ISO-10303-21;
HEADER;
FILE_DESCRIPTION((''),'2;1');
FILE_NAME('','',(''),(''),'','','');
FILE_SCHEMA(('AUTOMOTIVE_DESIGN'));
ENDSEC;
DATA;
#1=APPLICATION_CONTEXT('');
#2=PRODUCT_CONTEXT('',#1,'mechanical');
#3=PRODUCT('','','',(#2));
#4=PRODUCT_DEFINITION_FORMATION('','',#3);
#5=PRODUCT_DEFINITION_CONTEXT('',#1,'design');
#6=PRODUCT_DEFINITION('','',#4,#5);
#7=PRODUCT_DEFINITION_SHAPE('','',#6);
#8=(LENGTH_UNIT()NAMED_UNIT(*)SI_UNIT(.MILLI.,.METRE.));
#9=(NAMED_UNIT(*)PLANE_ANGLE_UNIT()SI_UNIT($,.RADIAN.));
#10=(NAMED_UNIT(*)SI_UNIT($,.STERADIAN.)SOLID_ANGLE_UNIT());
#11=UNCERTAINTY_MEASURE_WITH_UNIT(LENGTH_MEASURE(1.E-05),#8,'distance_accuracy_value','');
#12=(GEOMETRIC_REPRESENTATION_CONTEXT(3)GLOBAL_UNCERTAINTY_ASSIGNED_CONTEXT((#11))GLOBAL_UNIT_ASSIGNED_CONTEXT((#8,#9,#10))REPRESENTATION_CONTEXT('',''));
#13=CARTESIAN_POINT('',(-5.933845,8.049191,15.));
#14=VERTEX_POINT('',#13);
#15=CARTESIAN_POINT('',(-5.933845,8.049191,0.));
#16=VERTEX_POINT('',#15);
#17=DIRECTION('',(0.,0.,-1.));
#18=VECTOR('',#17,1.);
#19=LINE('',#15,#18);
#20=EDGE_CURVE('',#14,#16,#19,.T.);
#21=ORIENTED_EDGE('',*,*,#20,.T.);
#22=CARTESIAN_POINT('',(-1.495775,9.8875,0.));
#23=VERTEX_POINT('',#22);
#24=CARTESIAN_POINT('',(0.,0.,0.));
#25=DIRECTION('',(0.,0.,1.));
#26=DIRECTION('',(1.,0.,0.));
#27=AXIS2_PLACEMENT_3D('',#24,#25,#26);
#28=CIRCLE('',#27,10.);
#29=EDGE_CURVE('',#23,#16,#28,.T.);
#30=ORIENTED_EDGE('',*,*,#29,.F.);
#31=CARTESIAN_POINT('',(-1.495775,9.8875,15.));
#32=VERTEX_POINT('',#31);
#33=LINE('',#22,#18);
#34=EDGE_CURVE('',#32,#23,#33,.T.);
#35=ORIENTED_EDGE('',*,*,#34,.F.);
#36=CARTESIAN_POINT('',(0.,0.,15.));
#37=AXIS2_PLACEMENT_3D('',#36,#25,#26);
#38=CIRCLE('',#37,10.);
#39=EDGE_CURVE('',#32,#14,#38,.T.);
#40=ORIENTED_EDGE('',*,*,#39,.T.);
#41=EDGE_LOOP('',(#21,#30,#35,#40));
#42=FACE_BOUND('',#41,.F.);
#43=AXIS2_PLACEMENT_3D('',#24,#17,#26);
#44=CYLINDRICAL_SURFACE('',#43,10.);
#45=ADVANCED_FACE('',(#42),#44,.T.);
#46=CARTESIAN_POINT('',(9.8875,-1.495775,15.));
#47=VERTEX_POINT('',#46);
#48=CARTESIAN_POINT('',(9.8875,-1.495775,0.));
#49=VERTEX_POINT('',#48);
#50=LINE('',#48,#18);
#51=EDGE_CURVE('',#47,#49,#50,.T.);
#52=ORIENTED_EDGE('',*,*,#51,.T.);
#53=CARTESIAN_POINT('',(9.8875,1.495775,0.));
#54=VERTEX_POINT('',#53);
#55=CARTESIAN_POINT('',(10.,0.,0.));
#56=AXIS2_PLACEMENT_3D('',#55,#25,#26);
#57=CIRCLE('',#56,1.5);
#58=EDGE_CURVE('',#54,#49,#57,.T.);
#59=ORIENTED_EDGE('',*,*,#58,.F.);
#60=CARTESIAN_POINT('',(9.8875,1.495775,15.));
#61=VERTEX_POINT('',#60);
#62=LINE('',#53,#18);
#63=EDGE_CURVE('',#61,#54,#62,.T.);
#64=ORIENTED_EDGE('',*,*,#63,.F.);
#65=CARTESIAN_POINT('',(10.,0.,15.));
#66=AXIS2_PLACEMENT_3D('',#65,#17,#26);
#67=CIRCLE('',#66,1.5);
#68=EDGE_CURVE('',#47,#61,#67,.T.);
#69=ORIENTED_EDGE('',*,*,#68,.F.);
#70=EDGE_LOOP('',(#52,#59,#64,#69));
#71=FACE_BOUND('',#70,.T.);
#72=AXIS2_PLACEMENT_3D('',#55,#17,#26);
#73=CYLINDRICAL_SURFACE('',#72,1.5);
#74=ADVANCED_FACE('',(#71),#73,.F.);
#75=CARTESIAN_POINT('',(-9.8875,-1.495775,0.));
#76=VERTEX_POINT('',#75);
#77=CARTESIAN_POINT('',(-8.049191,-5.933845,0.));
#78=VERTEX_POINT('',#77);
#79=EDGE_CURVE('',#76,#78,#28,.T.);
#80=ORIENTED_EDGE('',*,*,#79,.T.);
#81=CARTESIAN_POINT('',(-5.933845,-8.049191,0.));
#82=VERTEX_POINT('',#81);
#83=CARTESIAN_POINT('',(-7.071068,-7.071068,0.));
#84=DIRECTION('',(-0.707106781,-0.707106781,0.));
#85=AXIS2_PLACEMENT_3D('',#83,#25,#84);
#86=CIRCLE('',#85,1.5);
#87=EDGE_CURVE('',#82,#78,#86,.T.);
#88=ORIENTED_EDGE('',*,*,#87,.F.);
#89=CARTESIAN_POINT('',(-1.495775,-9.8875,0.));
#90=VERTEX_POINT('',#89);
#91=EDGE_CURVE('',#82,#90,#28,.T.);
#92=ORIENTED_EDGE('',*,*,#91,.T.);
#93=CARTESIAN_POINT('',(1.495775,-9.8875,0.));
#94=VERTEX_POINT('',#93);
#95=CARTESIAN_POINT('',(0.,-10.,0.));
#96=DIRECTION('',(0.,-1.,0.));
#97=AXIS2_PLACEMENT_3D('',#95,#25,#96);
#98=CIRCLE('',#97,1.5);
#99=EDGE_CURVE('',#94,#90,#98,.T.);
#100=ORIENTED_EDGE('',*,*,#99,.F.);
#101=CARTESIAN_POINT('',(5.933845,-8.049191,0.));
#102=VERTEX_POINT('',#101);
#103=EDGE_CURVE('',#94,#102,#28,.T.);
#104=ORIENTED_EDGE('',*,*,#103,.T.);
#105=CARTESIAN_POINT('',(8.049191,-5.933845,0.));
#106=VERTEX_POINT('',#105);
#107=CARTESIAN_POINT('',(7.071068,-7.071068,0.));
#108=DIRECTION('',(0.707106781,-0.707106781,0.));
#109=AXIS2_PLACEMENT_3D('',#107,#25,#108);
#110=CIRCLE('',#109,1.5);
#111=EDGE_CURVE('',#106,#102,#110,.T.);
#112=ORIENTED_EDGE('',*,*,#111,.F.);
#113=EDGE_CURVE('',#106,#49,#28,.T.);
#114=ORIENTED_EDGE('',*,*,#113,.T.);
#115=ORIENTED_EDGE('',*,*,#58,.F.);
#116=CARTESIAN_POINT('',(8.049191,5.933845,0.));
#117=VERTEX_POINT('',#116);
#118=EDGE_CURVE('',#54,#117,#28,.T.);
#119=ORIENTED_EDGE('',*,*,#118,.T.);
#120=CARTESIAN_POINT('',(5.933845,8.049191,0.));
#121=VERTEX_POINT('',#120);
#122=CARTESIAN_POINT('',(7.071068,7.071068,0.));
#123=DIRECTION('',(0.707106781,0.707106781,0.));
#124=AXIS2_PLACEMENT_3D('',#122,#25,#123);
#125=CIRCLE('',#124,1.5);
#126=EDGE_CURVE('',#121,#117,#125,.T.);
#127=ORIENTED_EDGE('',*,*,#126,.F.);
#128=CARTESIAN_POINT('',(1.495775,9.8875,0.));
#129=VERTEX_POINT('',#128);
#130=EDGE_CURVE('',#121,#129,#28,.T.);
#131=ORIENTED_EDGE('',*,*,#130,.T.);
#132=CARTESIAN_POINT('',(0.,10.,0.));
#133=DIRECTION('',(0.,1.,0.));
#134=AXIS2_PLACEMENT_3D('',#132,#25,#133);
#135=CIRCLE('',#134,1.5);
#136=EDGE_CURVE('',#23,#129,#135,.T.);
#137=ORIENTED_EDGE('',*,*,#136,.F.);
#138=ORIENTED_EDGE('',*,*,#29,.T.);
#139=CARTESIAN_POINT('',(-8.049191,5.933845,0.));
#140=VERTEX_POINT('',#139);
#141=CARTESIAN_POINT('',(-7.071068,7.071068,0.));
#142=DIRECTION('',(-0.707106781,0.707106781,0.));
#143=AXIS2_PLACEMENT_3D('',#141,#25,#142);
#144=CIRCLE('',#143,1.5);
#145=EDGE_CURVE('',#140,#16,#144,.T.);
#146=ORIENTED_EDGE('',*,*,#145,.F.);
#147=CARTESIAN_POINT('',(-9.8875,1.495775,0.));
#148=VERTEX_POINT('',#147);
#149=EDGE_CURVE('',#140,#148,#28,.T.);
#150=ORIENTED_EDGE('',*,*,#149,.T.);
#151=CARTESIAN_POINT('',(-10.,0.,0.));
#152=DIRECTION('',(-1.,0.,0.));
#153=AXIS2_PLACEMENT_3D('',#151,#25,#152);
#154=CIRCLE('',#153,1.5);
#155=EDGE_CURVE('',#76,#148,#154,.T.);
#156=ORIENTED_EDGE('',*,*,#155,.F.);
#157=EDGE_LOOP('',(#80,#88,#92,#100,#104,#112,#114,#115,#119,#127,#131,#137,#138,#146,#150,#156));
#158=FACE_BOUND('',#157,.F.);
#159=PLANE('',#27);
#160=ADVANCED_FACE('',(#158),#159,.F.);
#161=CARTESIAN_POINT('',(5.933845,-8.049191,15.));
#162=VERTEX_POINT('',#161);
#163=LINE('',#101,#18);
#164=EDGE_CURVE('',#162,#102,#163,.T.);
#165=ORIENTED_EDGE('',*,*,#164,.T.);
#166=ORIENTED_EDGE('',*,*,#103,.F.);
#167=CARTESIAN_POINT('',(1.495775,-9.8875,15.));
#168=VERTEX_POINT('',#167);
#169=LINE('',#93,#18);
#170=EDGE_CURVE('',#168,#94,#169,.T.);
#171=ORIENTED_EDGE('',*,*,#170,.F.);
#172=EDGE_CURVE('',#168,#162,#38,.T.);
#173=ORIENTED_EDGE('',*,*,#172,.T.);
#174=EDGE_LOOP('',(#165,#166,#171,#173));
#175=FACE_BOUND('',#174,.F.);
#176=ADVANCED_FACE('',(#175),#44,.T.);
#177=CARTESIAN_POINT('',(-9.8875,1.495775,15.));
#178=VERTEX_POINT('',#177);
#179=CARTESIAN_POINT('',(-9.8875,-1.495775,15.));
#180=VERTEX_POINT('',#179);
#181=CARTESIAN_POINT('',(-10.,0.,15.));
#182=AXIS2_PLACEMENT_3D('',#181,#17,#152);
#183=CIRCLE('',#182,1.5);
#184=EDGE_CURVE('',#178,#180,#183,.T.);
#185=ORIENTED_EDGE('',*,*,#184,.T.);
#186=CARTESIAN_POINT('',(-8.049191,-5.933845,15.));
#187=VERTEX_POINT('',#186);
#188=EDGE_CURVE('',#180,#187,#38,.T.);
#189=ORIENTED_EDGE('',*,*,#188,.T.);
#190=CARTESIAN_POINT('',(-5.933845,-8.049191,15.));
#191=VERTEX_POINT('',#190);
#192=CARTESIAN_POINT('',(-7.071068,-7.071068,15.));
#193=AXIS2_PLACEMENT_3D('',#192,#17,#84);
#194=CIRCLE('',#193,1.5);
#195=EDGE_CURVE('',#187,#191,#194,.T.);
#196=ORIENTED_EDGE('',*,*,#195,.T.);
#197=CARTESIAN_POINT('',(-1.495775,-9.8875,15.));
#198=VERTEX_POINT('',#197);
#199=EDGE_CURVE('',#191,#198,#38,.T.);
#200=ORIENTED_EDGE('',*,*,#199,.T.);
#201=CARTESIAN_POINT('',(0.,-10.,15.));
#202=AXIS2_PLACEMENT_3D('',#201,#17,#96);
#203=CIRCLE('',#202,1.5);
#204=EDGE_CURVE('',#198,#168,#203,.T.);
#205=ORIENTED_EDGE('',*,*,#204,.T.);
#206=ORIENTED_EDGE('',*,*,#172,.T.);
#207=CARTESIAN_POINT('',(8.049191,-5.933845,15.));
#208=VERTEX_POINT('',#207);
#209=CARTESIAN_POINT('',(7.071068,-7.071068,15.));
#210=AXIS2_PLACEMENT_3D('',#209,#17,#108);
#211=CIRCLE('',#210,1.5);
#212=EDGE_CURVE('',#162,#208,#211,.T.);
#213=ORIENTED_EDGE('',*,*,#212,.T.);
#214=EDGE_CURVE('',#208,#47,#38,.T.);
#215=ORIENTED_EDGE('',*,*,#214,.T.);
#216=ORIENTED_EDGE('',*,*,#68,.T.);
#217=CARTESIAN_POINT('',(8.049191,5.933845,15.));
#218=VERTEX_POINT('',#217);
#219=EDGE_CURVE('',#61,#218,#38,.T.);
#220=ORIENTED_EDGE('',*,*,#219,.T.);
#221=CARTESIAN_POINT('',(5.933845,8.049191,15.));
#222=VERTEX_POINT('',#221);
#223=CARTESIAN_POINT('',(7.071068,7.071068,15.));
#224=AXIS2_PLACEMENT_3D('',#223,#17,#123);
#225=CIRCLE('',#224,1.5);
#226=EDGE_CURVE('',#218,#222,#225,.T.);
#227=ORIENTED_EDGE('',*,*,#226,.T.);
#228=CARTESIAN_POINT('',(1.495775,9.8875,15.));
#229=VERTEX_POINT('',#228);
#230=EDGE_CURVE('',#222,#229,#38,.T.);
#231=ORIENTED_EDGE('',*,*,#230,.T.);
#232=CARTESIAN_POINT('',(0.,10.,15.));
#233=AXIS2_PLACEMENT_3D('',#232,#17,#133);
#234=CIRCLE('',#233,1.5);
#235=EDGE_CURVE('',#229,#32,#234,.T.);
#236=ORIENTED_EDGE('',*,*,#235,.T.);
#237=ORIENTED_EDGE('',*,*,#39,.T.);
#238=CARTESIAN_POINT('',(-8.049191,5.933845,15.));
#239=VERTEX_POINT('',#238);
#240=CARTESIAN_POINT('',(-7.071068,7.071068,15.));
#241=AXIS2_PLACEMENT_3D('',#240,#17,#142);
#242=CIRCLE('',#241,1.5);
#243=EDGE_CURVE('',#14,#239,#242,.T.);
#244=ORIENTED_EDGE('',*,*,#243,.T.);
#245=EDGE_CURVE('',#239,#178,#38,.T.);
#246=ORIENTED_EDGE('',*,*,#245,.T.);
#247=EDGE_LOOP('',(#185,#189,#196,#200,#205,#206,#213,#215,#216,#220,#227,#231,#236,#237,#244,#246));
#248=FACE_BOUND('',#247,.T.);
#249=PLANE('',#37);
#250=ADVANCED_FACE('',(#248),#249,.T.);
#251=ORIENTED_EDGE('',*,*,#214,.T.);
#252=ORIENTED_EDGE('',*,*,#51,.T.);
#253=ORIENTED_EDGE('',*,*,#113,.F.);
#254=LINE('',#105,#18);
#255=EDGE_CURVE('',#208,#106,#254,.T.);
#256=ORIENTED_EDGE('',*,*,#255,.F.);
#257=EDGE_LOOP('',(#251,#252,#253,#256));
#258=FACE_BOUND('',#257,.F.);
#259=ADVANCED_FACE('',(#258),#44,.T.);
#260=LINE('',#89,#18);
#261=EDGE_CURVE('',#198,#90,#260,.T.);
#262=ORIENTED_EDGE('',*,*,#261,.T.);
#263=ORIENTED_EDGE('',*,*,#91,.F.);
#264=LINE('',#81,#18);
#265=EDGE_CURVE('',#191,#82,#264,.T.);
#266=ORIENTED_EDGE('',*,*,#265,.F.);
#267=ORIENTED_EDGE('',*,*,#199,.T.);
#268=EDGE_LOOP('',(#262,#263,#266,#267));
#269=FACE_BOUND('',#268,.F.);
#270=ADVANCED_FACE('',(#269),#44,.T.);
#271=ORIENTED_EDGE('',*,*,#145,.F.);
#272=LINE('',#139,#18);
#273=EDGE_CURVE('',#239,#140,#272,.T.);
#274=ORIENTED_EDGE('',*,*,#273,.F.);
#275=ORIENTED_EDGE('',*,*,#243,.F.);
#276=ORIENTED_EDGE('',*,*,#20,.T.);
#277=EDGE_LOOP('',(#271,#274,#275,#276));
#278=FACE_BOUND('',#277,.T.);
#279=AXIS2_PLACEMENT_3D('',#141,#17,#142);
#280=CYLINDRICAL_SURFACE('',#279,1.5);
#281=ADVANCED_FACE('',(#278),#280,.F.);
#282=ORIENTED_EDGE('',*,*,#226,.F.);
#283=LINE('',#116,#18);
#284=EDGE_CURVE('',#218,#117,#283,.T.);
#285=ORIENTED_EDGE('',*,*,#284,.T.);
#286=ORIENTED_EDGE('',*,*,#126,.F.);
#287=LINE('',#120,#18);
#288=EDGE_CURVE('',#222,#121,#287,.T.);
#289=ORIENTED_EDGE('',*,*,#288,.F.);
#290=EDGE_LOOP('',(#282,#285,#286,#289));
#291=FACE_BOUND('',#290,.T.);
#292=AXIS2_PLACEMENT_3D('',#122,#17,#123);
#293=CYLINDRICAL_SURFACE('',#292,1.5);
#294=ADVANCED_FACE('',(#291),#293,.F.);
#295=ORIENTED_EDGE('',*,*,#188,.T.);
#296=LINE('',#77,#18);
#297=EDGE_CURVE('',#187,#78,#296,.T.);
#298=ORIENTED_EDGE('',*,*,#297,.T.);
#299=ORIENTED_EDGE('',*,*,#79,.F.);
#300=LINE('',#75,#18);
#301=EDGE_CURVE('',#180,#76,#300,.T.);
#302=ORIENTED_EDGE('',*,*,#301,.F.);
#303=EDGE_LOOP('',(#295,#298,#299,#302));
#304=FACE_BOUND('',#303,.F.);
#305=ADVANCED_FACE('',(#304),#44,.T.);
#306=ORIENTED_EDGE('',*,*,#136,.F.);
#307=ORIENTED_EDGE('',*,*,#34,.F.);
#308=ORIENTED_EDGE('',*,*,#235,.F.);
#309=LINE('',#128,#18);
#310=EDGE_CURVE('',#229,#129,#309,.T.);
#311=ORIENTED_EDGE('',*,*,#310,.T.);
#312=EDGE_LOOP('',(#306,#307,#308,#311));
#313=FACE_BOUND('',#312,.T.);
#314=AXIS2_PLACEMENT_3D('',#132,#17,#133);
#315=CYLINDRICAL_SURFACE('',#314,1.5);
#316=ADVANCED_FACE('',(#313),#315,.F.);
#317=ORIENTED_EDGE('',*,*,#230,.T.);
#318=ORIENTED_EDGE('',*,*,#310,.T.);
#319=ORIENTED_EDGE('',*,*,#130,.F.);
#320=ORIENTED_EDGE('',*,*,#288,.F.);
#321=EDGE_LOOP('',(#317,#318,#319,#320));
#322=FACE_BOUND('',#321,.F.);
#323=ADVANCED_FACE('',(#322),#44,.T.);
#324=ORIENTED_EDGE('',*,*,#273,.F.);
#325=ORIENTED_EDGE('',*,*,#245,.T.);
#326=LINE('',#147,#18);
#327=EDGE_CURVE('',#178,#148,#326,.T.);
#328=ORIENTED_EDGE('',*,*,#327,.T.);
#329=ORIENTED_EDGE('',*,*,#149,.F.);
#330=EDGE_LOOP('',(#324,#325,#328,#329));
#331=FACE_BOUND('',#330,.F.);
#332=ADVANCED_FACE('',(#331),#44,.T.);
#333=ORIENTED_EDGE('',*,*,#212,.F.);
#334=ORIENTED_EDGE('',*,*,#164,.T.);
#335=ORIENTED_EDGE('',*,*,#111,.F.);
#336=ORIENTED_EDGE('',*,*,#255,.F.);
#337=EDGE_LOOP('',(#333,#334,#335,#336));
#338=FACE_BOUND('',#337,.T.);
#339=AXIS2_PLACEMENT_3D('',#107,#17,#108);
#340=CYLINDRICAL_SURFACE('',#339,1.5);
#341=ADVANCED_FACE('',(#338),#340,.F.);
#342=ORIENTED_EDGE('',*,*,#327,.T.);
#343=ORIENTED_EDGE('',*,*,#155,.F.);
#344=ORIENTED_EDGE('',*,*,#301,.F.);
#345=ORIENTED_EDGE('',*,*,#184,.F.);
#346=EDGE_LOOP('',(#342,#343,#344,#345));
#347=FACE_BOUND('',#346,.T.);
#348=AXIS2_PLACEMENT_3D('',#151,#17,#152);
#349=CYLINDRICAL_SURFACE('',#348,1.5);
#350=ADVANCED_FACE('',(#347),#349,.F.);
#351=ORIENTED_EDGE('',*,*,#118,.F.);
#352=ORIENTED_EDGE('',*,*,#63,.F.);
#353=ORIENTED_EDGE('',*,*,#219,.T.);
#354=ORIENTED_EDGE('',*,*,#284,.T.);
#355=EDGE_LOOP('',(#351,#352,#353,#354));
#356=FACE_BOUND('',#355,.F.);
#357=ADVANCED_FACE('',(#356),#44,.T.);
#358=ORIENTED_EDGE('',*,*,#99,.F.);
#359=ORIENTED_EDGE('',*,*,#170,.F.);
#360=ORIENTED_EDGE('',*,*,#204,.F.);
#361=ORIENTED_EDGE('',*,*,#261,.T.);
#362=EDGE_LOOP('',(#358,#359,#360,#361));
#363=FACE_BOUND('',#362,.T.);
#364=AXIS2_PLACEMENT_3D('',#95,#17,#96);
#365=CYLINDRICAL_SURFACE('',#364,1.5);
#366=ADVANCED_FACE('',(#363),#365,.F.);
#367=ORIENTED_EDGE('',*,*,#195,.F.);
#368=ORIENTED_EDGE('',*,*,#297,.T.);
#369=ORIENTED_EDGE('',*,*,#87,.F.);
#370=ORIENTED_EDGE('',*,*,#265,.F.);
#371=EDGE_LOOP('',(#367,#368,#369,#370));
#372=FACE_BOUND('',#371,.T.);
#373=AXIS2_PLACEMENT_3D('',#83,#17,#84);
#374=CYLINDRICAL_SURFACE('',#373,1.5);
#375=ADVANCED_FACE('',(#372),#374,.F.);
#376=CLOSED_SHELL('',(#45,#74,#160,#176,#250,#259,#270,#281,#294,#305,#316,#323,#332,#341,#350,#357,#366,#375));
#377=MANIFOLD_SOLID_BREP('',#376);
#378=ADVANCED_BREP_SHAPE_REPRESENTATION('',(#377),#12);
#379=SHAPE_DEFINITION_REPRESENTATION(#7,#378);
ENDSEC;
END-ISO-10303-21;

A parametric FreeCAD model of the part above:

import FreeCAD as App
import Part
import Sketcher

V = App.Vector

doc = App.newDocument("Part")
body = doc.addObject("PartDesign::Body", "Body")

sketch1 = body.newObject("Sketcher::SketchObject", "Sketch")
sketch1.AttachmentSupport = (doc.getObject("XY_Plane"), [""])
sketch1.MapMode = "FlatFace"
sketch1.addGeometry(Part.Circle(V(10, 0, 0), V(0, 0, 1), 1.5), False)
sketch1.addConstraint([
    Sketcher.Constraint("PointOnObject", 0, 3, -1),
    Sketcher.Constraint("Diameter", 0, 3.0),
    Sketcher.Constraint("DistanceX", -1, 1, 0, 3, 10.0),
])
pad1 = body.newObject("PartDesign::Pad", "Pad")
pad1.Profile = sketch1
pad1.Length = 20
body2 = doc.addObject("PartDesign::Body", "Body001")
body2.AllowCompound = True
doc.recompute()

body2.BaseFeature = body
doc.recompute()

body3 = doc.addObject("PartDesign::Body", "Body002")
body3.BaseFeature = body
body3.Placement = App.Placement(V(0, 0, 0), App.Rotation(V(0, 0, 1), 45))
boolean = body2.newObject("PartDesign::Boolean", "Boolean")
boolean.Type = "Fuse"
boolean.addObjects([body3])
doc.recompute()

body4 = doc.addObject("PartDesign::Body", "Body003")
body4.BaseFeature = body
body4.Placement = App.Placement(V(0, 0, 0), App.Rotation(V(0, 0, 1), 90))
boolean2 = body2.newObject("PartDesign::Boolean", "Boolean001")
boolean2.Type = "Fuse"
boolean2.addObjects([body4])
doc.recompute()

body5 = doc.addObject("PartDesign::Body", "Body004")
body5.BaseFeature = body
body5.Placement = App.Placement(V(0, 0, 0), App.Rotation(V(0, 0, 1), 135))
boolean3 = body2.newObject("PartDesign::Boolean", "Boolean002")
boolean3.Type = "Fuse"
boolean3.addObjects([body5])
doc.recompute()

body6 = doc.addObject("PartDesign::Body", "Body005")
body6.BaseFeature = body
body6.Placement = App.Placement(V(0, 0, 0), App.Rotation(V(0, 0, 1), 180))
boolean4 = body2.newObject("PartDesign::Boolean", "Boolean003")
boolean4.Type = "Fuse"
boolean4.addObjects([body6])
doc.recompute()

body7 = doc.addObject("PartDesign::Body", "Body006")
body7.BaseFeature = body
body7.Placement = App.Placement(V(0, 0, 0), App.Rotation(V(0, 0, 1), 225))
boolean5 = body2.newObject("PartDesign::Boolean", "Boolean004")
boolean5.Type = "Fuse"
boolean5.addObjects([body7])
doc.recompute()

body8 = doc.addObject("PartDesign::Body", "Body007")
body8.BaseFeature = body
body8.Placement = App.Placement(V(0, 0, 0), App.Rotation(V(0, 0, 1), 270))
boolean6 = body2.newObject("PartDesign::Boolean", "Boolean005")
boolean6.Type = "Fuse"
boolean6.addObjects([body8])
doc.recompute()

body.Placement = App.Placement(V(0, 0, 0), App.Rotation(V(0, 0, 1), 315))
boolean7 = body2.newObject("PartDesign::Boolean", "Boolean006")
boolean7.Type = "Fuse"
boolean7.addObjects([body])
body9 = doc.addObject("PartDesign::Body", "Body008")

sketch2 = body9.newObject("Sketcher::SketchObject", "Sketch001")
sketch2.AttachmentSupport = (doc.getObject("XY_Plane008"), [""])
sketch2.MapMode = "FlatFace"
sketch2.addGeometry(Part.Circle(V(0, 0, 0), V(0, 0, 1), 10), False)
sketch2.addConstraint([
    Sketcher.Constraint("Coincident", 0, 3, -1, 1),
    Sketcher.Constraint("Diameter", 0, 20.0),
])
pad2 = body9.newObject("PartDesign::Pad", "Pad001")
pad2.Profile = sketch2
pad2.Length = 15
doc.recompute()

boolean8 = body9.newObject("PartDesign::Boolean", "Boolean007")
boolean8.Type = "Cut"
boolean8.addObjects([body2])

doc.recompute()
